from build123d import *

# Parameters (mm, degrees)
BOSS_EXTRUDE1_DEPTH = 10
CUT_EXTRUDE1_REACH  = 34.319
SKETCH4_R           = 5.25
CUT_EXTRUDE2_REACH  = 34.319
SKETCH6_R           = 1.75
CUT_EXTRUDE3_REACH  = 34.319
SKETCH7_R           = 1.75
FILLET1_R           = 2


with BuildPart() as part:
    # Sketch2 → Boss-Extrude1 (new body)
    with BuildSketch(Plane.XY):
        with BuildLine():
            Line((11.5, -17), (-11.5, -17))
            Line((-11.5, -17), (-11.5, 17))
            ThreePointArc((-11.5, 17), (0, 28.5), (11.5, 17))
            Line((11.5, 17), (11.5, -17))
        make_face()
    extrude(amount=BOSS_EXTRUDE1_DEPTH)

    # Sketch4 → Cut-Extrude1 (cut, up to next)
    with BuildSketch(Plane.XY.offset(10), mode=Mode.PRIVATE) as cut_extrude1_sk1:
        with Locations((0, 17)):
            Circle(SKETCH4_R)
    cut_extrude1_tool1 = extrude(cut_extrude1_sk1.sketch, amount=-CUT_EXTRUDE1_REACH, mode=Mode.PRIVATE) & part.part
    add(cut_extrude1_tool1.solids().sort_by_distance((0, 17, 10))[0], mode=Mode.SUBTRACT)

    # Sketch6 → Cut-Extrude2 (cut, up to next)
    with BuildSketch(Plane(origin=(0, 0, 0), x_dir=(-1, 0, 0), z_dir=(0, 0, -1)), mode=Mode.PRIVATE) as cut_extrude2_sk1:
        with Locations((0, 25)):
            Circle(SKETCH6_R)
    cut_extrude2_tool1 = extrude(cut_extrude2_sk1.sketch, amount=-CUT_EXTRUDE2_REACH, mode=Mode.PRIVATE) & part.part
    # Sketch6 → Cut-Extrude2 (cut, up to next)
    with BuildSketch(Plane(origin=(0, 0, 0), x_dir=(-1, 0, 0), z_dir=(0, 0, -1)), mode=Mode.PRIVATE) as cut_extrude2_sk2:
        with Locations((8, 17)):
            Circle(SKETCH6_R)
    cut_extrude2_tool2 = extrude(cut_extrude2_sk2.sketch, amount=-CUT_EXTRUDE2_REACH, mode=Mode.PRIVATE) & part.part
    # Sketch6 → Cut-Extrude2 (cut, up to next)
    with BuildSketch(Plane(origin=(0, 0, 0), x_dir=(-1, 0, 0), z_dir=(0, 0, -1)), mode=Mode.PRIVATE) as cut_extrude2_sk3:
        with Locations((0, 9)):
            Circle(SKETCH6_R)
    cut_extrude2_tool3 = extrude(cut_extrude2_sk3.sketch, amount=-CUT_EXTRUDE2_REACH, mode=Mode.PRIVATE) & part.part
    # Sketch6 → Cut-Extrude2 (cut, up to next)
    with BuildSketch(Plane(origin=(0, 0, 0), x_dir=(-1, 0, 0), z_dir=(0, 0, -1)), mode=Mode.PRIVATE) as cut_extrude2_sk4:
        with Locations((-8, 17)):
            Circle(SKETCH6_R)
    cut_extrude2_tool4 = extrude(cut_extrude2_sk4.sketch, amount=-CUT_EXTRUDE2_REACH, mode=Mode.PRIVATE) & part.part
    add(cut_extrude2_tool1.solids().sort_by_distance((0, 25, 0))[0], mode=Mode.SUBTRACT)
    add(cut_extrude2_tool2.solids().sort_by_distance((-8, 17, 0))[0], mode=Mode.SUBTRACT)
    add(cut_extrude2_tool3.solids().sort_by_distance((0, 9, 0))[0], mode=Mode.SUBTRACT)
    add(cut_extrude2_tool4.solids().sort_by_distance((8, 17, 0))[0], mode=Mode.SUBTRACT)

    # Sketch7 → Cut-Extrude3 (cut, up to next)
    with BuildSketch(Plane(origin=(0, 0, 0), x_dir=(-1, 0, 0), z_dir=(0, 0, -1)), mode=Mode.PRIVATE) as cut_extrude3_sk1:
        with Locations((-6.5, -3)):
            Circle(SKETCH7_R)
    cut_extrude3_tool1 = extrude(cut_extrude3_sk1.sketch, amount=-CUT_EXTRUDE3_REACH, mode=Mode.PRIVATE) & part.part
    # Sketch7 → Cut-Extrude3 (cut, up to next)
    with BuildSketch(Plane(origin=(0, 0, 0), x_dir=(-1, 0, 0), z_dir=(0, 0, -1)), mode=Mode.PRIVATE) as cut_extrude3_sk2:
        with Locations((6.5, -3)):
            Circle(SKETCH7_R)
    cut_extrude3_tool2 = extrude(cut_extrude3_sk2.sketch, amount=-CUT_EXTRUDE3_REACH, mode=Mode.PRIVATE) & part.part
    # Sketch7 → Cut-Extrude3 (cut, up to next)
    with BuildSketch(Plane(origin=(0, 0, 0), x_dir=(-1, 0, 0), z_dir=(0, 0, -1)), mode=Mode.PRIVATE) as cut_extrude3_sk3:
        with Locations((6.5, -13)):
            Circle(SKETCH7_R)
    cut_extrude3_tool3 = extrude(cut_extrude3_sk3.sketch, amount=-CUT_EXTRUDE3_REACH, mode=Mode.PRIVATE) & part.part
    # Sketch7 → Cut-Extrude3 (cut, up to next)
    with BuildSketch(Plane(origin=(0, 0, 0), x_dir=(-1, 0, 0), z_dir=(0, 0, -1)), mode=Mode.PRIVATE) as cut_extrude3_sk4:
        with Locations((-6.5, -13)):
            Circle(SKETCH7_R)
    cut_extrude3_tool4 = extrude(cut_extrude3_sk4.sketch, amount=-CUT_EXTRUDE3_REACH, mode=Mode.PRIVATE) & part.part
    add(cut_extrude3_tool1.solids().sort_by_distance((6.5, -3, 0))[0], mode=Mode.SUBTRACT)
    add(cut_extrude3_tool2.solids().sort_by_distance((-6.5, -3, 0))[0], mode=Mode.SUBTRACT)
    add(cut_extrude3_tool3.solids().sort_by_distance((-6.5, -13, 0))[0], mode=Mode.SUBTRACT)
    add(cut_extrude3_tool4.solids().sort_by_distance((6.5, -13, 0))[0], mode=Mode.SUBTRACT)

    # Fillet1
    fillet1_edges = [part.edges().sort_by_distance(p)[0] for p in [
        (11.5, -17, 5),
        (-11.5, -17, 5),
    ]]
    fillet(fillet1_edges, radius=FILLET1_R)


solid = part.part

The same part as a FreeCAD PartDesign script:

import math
import FreeCAD as App
import Part
import Sketcher
from FreeCAD import Vector


def edges_at(feature, points):
    """Names of the edges that pass closest to the given points."""
    edges = feature.Shape.Edges
    near = lambda p: min(range(len(edges)), key=lambda i: edges[i].distToShape(Part.Vertex(*p))[0])
    return sorted({f"Edge{near(p) + 1}" for p in points})

doc = App.newDocument("Part")
body = doc.addObject("PartDesign::Body", "Body")

# Sketch on XY plane
sketch1 = doc.addObject("Sketcher::SketchObject", "Sketch")
body.addObject(sketch1)
sketch1.AttachmentSupport = (doc.XY_Plane, [""])
sketch1.MapMode = "FlatFace"
sketch1.addGeometry(Part.LineSegment(Vector(-12, -17, 0), Vector(12, -17, 0)), False)
sketch1.addGeometry(Part.LineSegment(Vector(12, -17, 0), Vector(12, 17, 0)), False)
sketch1.addGeometry(Part.ArcOfCircle(Part.Circle(Vector(0, 17, 0), Vector(0, 0, 1), 12), math.radians(0), math.radians(180)), False)
sketch1.addGeometry(Part.LineSegment(Vector(-12, 17, 0), Vector(-12, -17, 0)), False)
sketch1.addConstraint(Sketcher.Constraint("Coincident", 0, 2, 1, 1))
sketch1.addConstraint(Sketcher.Constraint("Tangent", 1, 2, 2, 1))
sketch1.addConstraint(Sketcher.Constraint("Tangent", 2, 2, 3, 1))
sketch1.addConstraint(Sketcher.Constraint("Coincident", 3, 2, 0, 1))
sketch1.addConstraint(Sketcher.Constraint("Horizontal", 0))
sketch1.addConstraint(Sketcher.Constraint("Vertical", 1))
sketch1.addConstraint(Sketcher.Constraint("Vertical", 3))
sketch1.addConstraint(Sketcher.Constraint("Symmetric", 0, 2, 2, 2, -1, 1))
sketch1.addConstraint(Sketcher.Constraint("Radius", 2, 11.5))
sketch1.addConstraint(Sketcher.Constraint("DistanceY", 1, 1, 1, 2, 34.0))
pad1 = doc.addObject("PartDesign::Pad", "Pad")
body.addObject(pad1)
pad1.Profile = sketch1
pad1.Length = 10

# Sketch on XY plane
sketch2 = doc.addObject("Sketcher::SketchObject", "Sketch001")
body.addObject(sketch2)
sketch2.AttachmentSupport = (doc.XY_Plane, [""])
sketch2.MapMode = "FlatFace"
sketch2.AttachmentOffset = App.Placement(Vector(0, 0, 10), App.Rotation())
sketch2.addGeometry(Part.Circle(Vector(0, 17, 0), Vector(0, 0, 1), 5), False)
sketch2.addConstraint(Sketcher.Constraint("PointOnObject", 0, 3, -2))
sketch2.addConstraint(Sketcher.Constraint("Diameter", 0, 10.5))
sketch2.addConstraint(Sketcher.Constraint("DistanceY", -1, 1, 0, 3, 17.0))
pocket1 = doc.addObject("PartDesign::Pocket", "Pocket")
body.addObject(pocket1)
pocket1.Profile = sketch2
pocket1.Type = "UpToFirst"

# Sketch on XY plane
sketch3 = doc.addObject("Sketcher::SketchObject", "Sketch002")
body.addObject(sketch3)
sketch3.AttachmentSupport = (doc.XY_Plane, [""])
sketch3.MapMode = "FlatFace"
sketch3.addGeometry(Part.Circle(Vector(0, 25, 0), Vector(0, 0, 1), 1.8), False)
sketch3.addConstraint(Sketcher.Constraint("PointOnObject", 0, 3, -2))
sketch3.addConstraint(Sketcher.Constraint("Diameter", 0, 3.5))
sketch3.addConstraint(Sketcher.Constraint("DistanceY", -1, 1, 0, 3, 25.0))
pocket2 = doc.addObject("PartDesign::Pocket", "Pocket001")
body.addObject(pocket2)
pocket2.Profile = sketch3
pocket2.Type = "UpToFirst"
pocket2.Reversed = True

# Sketch on XY plane
sketch4 = doc.addObject("Sketcher::SketchObject", "Sketch003")
body.addObject(sketch4)
sketch4.AttachmentSupport = (doc.XY_Plane, [""])
sketch4.MapMode = "FlatFace"
sketch4.addGeometry(Part.Circle(Vector(-8, 17, 0), Vector(0, 0, 1), 1.8), False)
sketch4.addConstraint(Sketcher.Constraint("Diameter", 0, 3.5))
sketch4.addConstraint(Sketcher.Constraint("DistanceX", 0, 3, -1, 1, 8.0))
sketch4.addConstraint(Sketcher.Constraint("DistanceY", -1, 1, 0, 3, 17.0))
pocket3 = doc.addObject("PartDesign::Pocket", "Pocket002")
body.addObject(pocket3)
pocket3.Profile = sketch4
pocket3.Type = "UpToFirst"
pocket3.Reversed = True

# Sketch on XY plane
sketch5 = doc.addObject("Sketcher::SketchObject", "Sketch004")
body.addObject(sketch5)
sketch5.AttachmentSupport = (doc.XY_Plane, [""])
sketch5.MapMode = "FlatFace"
sketch5.addGeometry(Part.Circle(Vector(0, 9, 0), Vector(0, 0, 1), 1.8), False)
sketch5.addConstraint(Sketcher.Constraint("PointOnObject", 0, 3, -2))
sketch5.addConstraint(Sketcher.Constraint("Diameter", 0, 3.5))
sketch5.addConstraint(Sketcher.Constraint("DistanceY", -1, 1, 0, 3, 9.0))
pocket4 = doc.addObject("PartDesign::Pocket", "Pocket003")
body.addObject(pocket4)
pocket4.Profile = sketch5
pocket4.Type = "UpToFirst"
pocket4.Reversed = True

# Sketch on XY plane
sketch6 = doc.addObject("Sketcher::SketchObject", "Sketch005")
body.addObject(sketch6)
sketch6.AttachmentSupport = (doc.XY_Plane, [""])
sketch6.MapMode = "FlatFace"
sketch6.addGeometry(Part.Circle(Vector(8, 17, 0), Vector(0, 0, 1), 1.8), False)
sketch6.addConstraint(Sketcher.Constraint("Diameter", 0, 3.5))
sketch6.addConstraint(Sketcher.Constraint("DistanceX", -1, 1, 0, 3, 8.0))
sketch6.addConstraint(Sketcher.Constraint("DistanceY", -1, 1, 0, 3, 17.0))
pocket5 = doc.addObject("PartDesign::Pocket", "Pocket004")
body.addObject(pocket5)
pocket5.Profile = sketch6
pocket5.Type = "UpToFirst"
pocket5.Reversed = True

# Sketch on XY plane
sketch7 = doc.addObject("Sketcher::SketchObject", "Sketch006")
body.addObject(sketch7)
sketch7.AttachmentSupport = (doc.XY_Plane, [""])
sketch7.MapMode = "FlatFace"
sketch7.addGeometry(Part.Circle(Vector(6.5, -3, 0), Vector(0, 0, 1), 1.8), False)
sketch7.addConstraint(Sketcher.Constraint("Diameter", 0, 3.5))
sketch7.addConstraint(Sketcher.Constraint("DistanceY", 0, 3, -1, 1, 3.0))
sketch7.addConstraint(Sketcher.Constraint("DistanceX", -1, 1, 0, 3, 6.5))
pocket6 = doc.addObject("PartDesign::Pocket", "Pocket005")
body.addObject(pocket6)
pocket6.Profile = sketch7
pocket6.Type = "UpToFirst"
pocket6.Reversed = True

# Sketch on XY plane
sketch8 = doc.addObject("Sketcher::SketchObject", "Sketch007")
body.addObject(sketch8)
sketch8.AttachmentSupport = (doc.XY_Plane, [""])
sketch8.MapMode = "FlatFace"
sketch8.addGeometry(Part.Circle(Vector(-6.5, -3, 0), Vector(0, 0, 1), 1.8), False)
sketch8.addConstraint(Sketcher.Constraint("Diameter", 0, 3.5))
sketch8.addConstraint(Sketcher.Constraint("DistanceY", 0, 3, -1, 1, 3.0))
sketch8.addConstraint(Sketcher.Constraint("DistanceX", 0, 3, -1, 1, 6.5))
pocket7 = doc.addObject("PartDesign::Pocket", "Pocket006")
body.addObject(pocket7)
pocket7.Profile = sketch8
pocket7.Type = "UpToFirst"
pocket7.Reversed = True

# Sketch on XY plane
sketch9 = doc.addObject("Sketcher::SketchObject", "Sketch008")
body.addObject(sketch9)
sketch9.AttachmentSupport = (doc.XY_Plane, [""])
sketch9.MapMode = "FlatFace"
sketch9.addGeometry(Part.Circle(Vector(-6.5, -13, 0), Vector(0, 0, 1), 1.8), False)
sketch9.addConstraint(Sketcher.Constraint("Diameter", 0, 3.5))
sketch9.addConstraint(Sketcher.Constraint("DistanceY", 0, 3, -1, 1, 13.0))
sketch9.addConstraint(Sketcher.Constraint("DistanceX", 0, 3, -1, 1, 6.5))
pocket8 = doc.addObject("PartDesign::Pocket", "Pocket007")
body.addObject(pocket8)
pocket8.Profile = sketch9
pocket8.Type = "UpToFirst"
pocket8.Reversed = True

# Sketch on XY plane
sketch10 = doc.addObject("Sketcher::SketchObject", "Sketch009")
body.addObject(sketch10)
sketch10.AttachmentSupport = (doc.XY_Plane, [""])
sketch10.MapMode = "FlatFace"
sketch10.addGeometry(Part.Circle(Vector(6.5, -13, 0), Vector(0, 0, 1), 1.8), False)
sketch10.addConstraint(Sketcher.Constraint("Diameter", 0, 3.5))
sketch10.addConstraint(Sketcher.Constraint("DistanceY", 0, 3, -1, 1, 13.0))
sketch10.addConstraint(Sketcher.Constraint("DistanceX", -1, 1, 0, 3, 6.5))
pocket9 = doc.addObject("PartDesign::Pocket", "Pocket008")
body.addObject(pocket9)
pocket9.Profile = sketch10
pocket9.Type = "UpToFirst"
pocket9.Reversed = True
doc.recompute()

fillet = doc.addObject("PartDesign::Fillet", "Fillet")
body.addObject(fillet)
fillet.Base = (pocket9, edges_at(pocket9, [(11.5, -17, 5), (-11.5, -17, 5)]))
fillet.Radius = 2

doc.recompute()
